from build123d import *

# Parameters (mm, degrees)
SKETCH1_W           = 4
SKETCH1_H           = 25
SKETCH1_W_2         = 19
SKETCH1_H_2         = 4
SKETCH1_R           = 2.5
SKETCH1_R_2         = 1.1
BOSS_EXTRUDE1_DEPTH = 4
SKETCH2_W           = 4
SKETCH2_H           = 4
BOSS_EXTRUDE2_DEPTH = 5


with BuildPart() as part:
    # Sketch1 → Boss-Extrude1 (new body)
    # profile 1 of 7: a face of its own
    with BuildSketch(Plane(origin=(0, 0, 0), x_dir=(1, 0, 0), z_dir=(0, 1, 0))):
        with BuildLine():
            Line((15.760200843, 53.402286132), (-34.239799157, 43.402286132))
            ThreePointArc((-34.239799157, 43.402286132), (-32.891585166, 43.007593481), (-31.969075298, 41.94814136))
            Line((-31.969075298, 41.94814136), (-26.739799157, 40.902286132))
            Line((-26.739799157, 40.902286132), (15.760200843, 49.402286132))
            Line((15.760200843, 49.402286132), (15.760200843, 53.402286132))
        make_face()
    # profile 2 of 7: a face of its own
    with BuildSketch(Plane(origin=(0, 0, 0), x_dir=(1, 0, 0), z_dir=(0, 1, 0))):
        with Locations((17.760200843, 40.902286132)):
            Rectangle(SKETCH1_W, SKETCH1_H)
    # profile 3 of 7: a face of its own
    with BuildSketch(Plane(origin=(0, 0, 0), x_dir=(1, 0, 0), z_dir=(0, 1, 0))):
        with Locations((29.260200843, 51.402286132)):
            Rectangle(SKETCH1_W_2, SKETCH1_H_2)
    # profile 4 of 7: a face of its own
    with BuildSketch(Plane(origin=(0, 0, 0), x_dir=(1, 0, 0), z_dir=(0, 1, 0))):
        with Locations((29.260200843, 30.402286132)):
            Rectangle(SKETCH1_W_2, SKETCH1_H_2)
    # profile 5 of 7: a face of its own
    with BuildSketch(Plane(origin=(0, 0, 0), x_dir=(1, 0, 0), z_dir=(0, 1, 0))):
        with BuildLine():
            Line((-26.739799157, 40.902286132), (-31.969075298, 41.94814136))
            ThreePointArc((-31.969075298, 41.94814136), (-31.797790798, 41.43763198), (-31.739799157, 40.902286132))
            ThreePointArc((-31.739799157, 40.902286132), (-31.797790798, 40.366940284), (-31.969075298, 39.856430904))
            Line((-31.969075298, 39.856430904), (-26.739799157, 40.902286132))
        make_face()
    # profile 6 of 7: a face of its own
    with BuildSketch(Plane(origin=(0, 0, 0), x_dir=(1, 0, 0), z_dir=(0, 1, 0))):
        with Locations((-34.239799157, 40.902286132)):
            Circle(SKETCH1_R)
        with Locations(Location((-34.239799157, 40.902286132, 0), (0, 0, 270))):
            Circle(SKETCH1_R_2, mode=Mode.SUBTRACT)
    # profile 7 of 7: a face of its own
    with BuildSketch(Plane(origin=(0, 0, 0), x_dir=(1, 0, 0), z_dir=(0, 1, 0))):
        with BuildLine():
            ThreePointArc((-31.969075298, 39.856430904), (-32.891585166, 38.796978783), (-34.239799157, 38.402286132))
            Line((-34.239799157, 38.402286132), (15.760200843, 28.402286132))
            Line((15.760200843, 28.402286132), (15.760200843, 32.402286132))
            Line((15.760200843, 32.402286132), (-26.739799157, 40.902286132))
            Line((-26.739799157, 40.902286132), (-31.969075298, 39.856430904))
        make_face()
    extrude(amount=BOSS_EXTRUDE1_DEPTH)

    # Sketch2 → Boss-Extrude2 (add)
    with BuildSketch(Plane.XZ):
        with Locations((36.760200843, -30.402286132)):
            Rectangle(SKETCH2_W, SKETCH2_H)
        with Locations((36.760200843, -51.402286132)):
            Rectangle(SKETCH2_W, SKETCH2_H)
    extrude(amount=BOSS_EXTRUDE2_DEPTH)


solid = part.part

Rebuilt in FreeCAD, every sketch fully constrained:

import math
import FreeCAD as App
import Part
import Sketcher
Q = App.Units.Quantity

doc = App.newDocument("Part")
body = doc.addObject("PartDesign::Body", "Body")

# Sketch on XZ plane
sketch1 = doc.addObject("Sketcher::SketchObject", "Sketch")
body.addObject(sketch1)
sketch1.AttachmentSupport = (doc.XZ_Plane, [""])
sketch1.MapMode = "FlatFace"
sketch1.addGeometry(Part.LineSegment(App.Vector(15.8, -53.4, 0), App.Vector(-34.2, -43.4, 0)), False)
sketch1.addGeometry(Part.ArcOfCircle(Part.Circle(App.Vector(-34.2, -40.9, 0), App.Vector(0, 0, 1), 2.5), math.radians(90), math.radians(270)), False)
sketch1.addGeometry(Part.LineSegment(App.Vector(-34.2, -38.4, 0), App.Vector(15.8, -28.4, 0)), False)
sketch1.addGeometry(Part.LineSegment(App.Vector(15.8, -28.4, 0), App.Vector(38.8, -28.4, 0)), False)
sketch1.addGeometry(Part.LineSegment(App.Vector(38.8, -28.4, 0), App.Vector(38.8, -32.4, 0)), False)
sketch1.addGeometry(Part.LineSegment(App.Vector(38.8, -32.4, 0), App.Vector(19.8, -32.4, 0)), False)
sketch1.addGeometry(Part.LineSegment(App.Vector(19.8, -32.4, 0), App.Vector(19.8, -49.4, 0)), False)
sketch1.addGeometry(Part.LineSegment(App.Vector(19.8, -49.4, 0), App.Vector(38.8, -49.4, 0)), False)
sketch1.addGeometry(Part.LineSegment(App.Vector(38.8, -49.4, 0), App.Vector(38.8, -53.4, 0)), False)
sketch1.addGeometry(Part.LineSegment(App.Vector(38.8, -53.4, 0), App.Vector(15.8, -53.4, 0)), False)
sketch1.addGeometry(Part.LineSegment(App.Vector(-26.7, -40.9, 0), App.Vector(15.8, -49.4, 0)), False)
sketch1.addGeometry(Part.LineSegment(App.Vector(15.8, -49.4, 0), App.Vector(15.8, -32.4, 0)), False)
sketch1.addGeometry(Part.LineSegment(App.Vector(15.8, -32.4, 0), App.Vector(-26.7, -40.9, 0)), False)
sketch1.addGeometry(Part.Circle(App.Vector(-34.2, -40.9, 0), App.Vector(0, 0, 1), 1.1), False)
sketch1.addConstraint(Sketcher.Constraint("Coincident", 0, 2, 1, 2))
sketch1.addConstraint(Sketcher.Constraint("Coincident", 1, 1, 2, 1))
sketch1.addConstraint(Sketcher.Constraint("Coincident", 2, 2, 3, 1))
sketch1.addConstraint(Sketcher.Constraint("Coincident", 3, 2, 4, 1))
sketch1.addConstraint(Sketcher.Constraint("Coincident", 4, 2, 5, 1))
sketch1.addConstraint(Sketcher.Constraint("Coincident", 5, 2, 6, 1))
sketch1.addConstraint(Sketcher.Constraint("Coincident", 6, 2, 7, 1))
sketch1.addConstraint(Sketcher.Constraint("Coincident", 7, 2, 8, 1))
sketch1.addConstraint(Sketcher.Constraint("Coincident", 8, 2, 9, 1))
sketch1.addConstraint(Sketcher.Constraint("Coincident", 9, 2, 0, 1))
sketch1.addConstraint(Sketcher.Constraint("Coincident", 10, 2, 11, 1))
sketch1.addConstraint(Sketcher.Constraint("Coincident", 11, 2, 12, 1))
sketch1.addConstraint(Sketcher.Constraint("Coincident", 12, 2, 10, 1))
sketch1.addConstraint(Sketcher.Constraint("Horizontal", 3))
sketch1.addConstraint(Sketcher.Constraint("Vertical", 4))
sketch1.addConstraint(Sketcher.Constraint("Horizontal", 5))
sketch1.addConstraint(Sketcher.Constraint("Vertical", 6))
sketch1.addConstraint(Sketcher.Constraint("Horizontal", 7))
sketch1.addConstraint(Sketcher.Constraint("Vertical", 8))
sketch1.addConstraint(Sketcher.Constraint("Horizontal", 9))
sketch1.addConstraint(Sketcher.Constraint("Vertical", 11))
sketch1.addConstraint(Sketcher.Constraint("Coincident", 13, 3, 1, 3))
sketch1.addConstraint(Sketcher.Constraint("Parallel", 0, 10))
sketch1.addConstraint(Sketcher.Constraint("Parallel", 2, 12))
sketch1.addConstraint(Sketcher.Constraint("Horizontal", 7, 2, 10, 2))
sketch1.addConstraint(Sketcher.Constraint("Horizontal", 5, 2, 11, 2))
sketch1.addConstraint(Sketcher.Constraint("Horizontal", 13, 3, 12, 2))
sketch1.addConstraint(Sketcher.Constraint("Vertical", 13, 3, 0, 2))
sketch1.addConstraint(Sketcher.Constraint("Vertical", 0, 2, 1, 1))
sketch1.addConstraint(Sketcher.Constraint("Vertical", 4, 2, 7, 2))
sketch1.addConstraint(Sketcher.Constraint("Vertical", 2, 2, 9, 2))
sketch1.addConstraint(Sketcher.Constraint("Vertical", 9, 2, 10, 2))
sketch1.addConstraint(Sketcher.Constraint("Equal", 4, 8))
sketch1.addConstraint(Sketcher.Constraint("Diameter", 13, Q("2.2 mm")))
sketch1.addConstraint(Sketcher.Constraint("Radius", 1, Q("2.5 mm")))
sketch1.addConstraint(Sketcher.Constraint("DistanceX", 3, 1, 3, 2, Q("23 mm")))
sketch1.addConstraint(Sketcher.Constraint("DistanceX", 5, 2, 5, 1, Q("19 mm")))
sketch1.addConstraint(Sketcher.Constraint("DistanceY", 4, 2, 4, 1, Q("4 mm")))
sketch1.addConstraint(Sketcher.Constraint("DistanceY", 6, 2, 6, 1, Q("17 mm")))
sketch1.addConstraint(Sketcher.Constraint("DistanceX", 1, 1, 2, 2, Q("50 mm")))
sketch1.addConstraint(Sketcher.Constraint("DistanceX", 1, 3, -1, 1, Q("34.239799 mm")))
sketch1.addConstraint(Sketcher.Constraint("DistanceY", 1, 3, -1, 1, Q("40.902286 mm")))
pad1 = doc.addObject("PartDesign::Pad", "Pad")
body.addObject(pad1)
pad1.Profile = sketch1
pad1.Length = 4
pad1.Reversed = True

# Sketch on XZ plane
sketch2 = doc.addObject("Sketcher::SketchObject", "Sketch001")
body.addObject(sketch2)
sketch2.AttachmentSupport = (doc.XZ_Plane, [""])
sketch2.MapMode = "FlatFace"
sketch2.addGeometry(Part.LineSegment(App.Vector(34.8, -28.4, 0), App.Vector(34.8, -32.4, 0)), False)
sketch2.addGeometry(Part.LineSegment(App.Vector(34.8, -32.4, 0), App.Vector(38.8, -32.4, 0)), False)
sketch2.addGeometry(Part.LineSegment(App.Vector(38.8, -32.4, 0), App.Vector(38.8, -28.4, 0)), False)
sketch2.addGeometry(Part.LineSegment(App.Vector(38.8, -28.4, 0), App.Vector(34.8, -28.4, 0)), False)
sketch2.addGeometry(Part.LineSegment(App.Vector(34.8, -49.4, 0), App.Vector(34.8, -53.4, 0)), False)
sketch2.addGeometry(Part.LineSegment(App.Vector(34.8, -53.4, 0), App.Vector(38.8, -53.4, 0)), False)
sketch2.addGeometry(Part.LineSegment(App.Vector(38.8, -53.4, 0), App.Vector(38.8, -49.4, 0)), False)
sketch2.addGeometry(Part.LineSegment(App.Vector(38.8, -49.4, 0), App.Vector(34.8, -49.4, 0)), False)
sketch2.addConstraint(Sketcher.Constraint("Coincident", 0, 2, 1, 1))
sketch2.addConstraint(Sketcher.Constraint("Coincident", 1, 2, 2, 1))
sketch2.addConstraint(Sketcher.Constraint("Coincident", 2, 2, 3, 1))
sketch2.addConstraint(Sketcher.Constraint("Coincident", 3, 2, 0, 1))
sketch2.addConstraint(Sketcher.Constraint("Coincident", 4, 2, 5, 1))
sketch2.addConstraint(Sketcher.Constraint("Coincident", 5, 2, 6, 1))
sketch2.addConstraint(Sketcher.Constraint("Coincident", 6, 2, 7, 1))
sketch2.addConstraint(Sketcher.Constraint("Coincident", 7, 2, 4, 1))
sketch2.addConstraint(Sketcher.Constraint("Vertical", 0))
sketch2.addConstraint(Sketcher.Constraint("Horizontal", 1))
sketch2.addConstraint(Sketcher.Constraint("Vertical", 2))
sketch2.addConstraint(Sketcher.Constraint("Horizontal", 3))
sketch2.addConstraint(Sketcher.Constraint("Vertical", 4))
sketch2.addConstraint(Sketcher.Constraint("Horizontal", 5))
sketch2.addConstraint(Sketcher.Constraint("Vertical", 6))
sketch2.addConstraint(Sketcher.Constraint("Horizontal", 7))
sketch2.addConstraint(Sketcher.Constraint("Vertical", 3, 2, 4, 2))
sketch2.addConstraint(Sketcher.Constraint("Vertical", 2, 2, 5, 2))
sketch2.addConstraint(Sketcher.Constraint("Equal", 7, 0))
sketch2.addConstraint(Sketcher.Constraint("Equal", 2, 4))
sketch2.addConstraint(Sketcher.Constraint("DistanceX", 1, 1, 1, 2, Q("4 mm")))
sketch2.addConstraint(Sketcher.Constraint("DistanceY", 4, 2, 0, 2, Q("21 mm")))
sketch2.addConstraint(Sketcher.Constraint("DistanceX", -1, 1, 0, 2, Q("34.760201 mm")))
sketch2.addConstraint(Sketcher.Constraint("DistanceY", 0, 2, -1, 1, Q("32.402286 mm")))
pad2 = doc.addObject("PartDesign::Pad", "Pad001")
body.addObject(pad2)
pad2.Profile = sketch2
pad2.Length = 5

doc.recompute()
